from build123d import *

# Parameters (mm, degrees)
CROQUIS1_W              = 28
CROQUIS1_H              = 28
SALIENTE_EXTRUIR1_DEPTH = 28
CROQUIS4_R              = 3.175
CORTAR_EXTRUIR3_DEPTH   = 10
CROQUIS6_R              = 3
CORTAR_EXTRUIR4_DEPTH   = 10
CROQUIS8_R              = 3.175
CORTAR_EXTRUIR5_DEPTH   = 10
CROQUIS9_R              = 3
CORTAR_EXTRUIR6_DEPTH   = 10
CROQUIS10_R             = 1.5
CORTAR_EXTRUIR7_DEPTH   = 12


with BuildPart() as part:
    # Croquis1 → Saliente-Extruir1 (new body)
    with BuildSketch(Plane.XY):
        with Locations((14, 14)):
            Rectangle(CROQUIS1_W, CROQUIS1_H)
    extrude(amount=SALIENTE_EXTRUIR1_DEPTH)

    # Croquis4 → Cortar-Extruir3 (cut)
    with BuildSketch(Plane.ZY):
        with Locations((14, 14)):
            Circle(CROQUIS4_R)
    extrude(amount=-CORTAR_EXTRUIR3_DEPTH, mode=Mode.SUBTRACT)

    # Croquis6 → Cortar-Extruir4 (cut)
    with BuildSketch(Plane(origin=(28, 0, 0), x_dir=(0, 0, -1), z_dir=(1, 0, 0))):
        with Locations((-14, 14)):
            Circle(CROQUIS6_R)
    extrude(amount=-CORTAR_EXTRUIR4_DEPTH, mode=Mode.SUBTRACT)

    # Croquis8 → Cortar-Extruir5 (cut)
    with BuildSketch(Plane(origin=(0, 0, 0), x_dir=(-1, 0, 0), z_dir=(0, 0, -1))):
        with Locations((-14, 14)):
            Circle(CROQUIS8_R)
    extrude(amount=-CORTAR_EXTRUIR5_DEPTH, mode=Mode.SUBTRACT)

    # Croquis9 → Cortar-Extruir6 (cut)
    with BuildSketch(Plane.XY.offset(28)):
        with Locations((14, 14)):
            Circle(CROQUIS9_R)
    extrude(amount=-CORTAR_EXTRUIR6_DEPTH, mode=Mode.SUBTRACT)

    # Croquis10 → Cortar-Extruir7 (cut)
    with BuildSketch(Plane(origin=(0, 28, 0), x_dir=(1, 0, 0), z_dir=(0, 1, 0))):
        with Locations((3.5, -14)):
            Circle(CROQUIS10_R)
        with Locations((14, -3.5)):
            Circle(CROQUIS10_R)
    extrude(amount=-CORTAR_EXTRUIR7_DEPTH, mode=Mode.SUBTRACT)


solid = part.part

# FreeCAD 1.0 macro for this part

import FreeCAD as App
import Part
import Sketcher

doc = App.newDocument("Part")
body = doc.addObject("PartDesign::Body", "Body")

sketch1 = body.newObject("Sketcher::SketchObject", "Sketch")
sketch1.AttachmentSupport = (doc.getObject("XY_Plane"), [""])
sketch1.MapMode = "FlatFace"
sketch1.addGeometry([
    Part.LineSegment(App.Vector(0, 28, 0), App.Vector(0, 0, 0)),
    Part.LineSegment(App.Vector(0, 0, 0), App.Vector(28, 0, 0)),
    Part.LineSegment(App.Vector(28, 0, 0), App.Vector(28, 28, 0)),
    Part.LineSegment(App.Vector(28, 28, 0), App.Vector(0, 28, 0)),
], False)
sketch1.addConstraint([
    Sketcher.Constraint("Coincident", 0, 2, 1, 1),
    Sketcher.Constraint("Coincident", 1, 2, 2, 1),
    Sketcher.Constraint("Coincident", 2, 2, 3, 1),
    Sketcher.Constraint("Coincident", 3, 2, 0, 1),
    Sketcher.Constraint("Vertical", 0),
    Sketcher.Constraint("Horizontal", 1),
    Sketcher.Constraint("Vertical", 2),
    Sketcher.Constraint("Horizontal", 3),
    Sketcher.Constraint("Coincident", 0, 2, -1, 1),
    Sketcher.Constraint("Equal", 3, 0),
    Sketcher.Constraint("DistanceX", 1, 1, 1, 2, 28.0),
])
pad1 = body.newObject("PartDesign::Pad", "Pad")
pad1.Profile = sketch1
pad1.Length = 28

sketch2 = body.newObject("Sketcher::SketchObject", "Sketch001")
sketch2.AttachmentSupport = (doc.getObject("YZ_Plane"), [""])
sketch2.MapMode = "FlatFace"
sketch2.addGeometry(Part.Circle(App.Vector(14, 14, 0), App.Vector(0, 0, 1), 3.2), False)
sketch2.addConstraint([
    Sketcher.Constraint("Diameter", 0, 6.35),
    Sketcher.Constraint("DistanceX", -1, 1, 0, 3, 14.0),
    Sketcher.Constraint("DistanceY", -1, 1, 0, 3, 14.0),
])
pocket1 = body.newObject("PartDesign::Pocket", "Pocket")
pocket1.Profile = sketch2
pocket1.Length = 10
pocket1.Reversed = True

sketch3 = body.newObject("Sketcher::SketchObject", "Sketch002")
sketch3.AttachmentSupport = (doc.getObject("YZ_Plane"), [""])
sketch3.MapMode = "FlatFace"
sketch3.AttachmentOffset = App.Placement(App.Vector(0, 0, 28), App.Rotation())
sketch3.addGeometry(Part.Circle(App.Vector(14, 14, 0), App.Vector(0, 0, 1), 3), False)
sketch3.addConstraint([
    Sketcher.Constraint("Diameter", 0, 6.0),
    Sketcher.Constraint("DistanceX", -1, 1, 0, 3, 14.0),
    Sketcher.Constraint("DistanceY", -1, 1, 0, 3, 14.0),
])
pocket2 = body.newObject("PartDesign::Pocket", "Pocket001")
pocket2.Profile = sketch3
pocket2.Length = 10

sketch4 = body.newObject("Sketcher::SketchObject", "Sketch003")
sketch4.AttachmentSupport = (doc.getObject("XY_Plane"), [""])
sketch4.MapMode = "FlatFace"
sketch4.addGeometry(Part.Circle(App.Vector(14, 14, 0), App.Vector(0, 0, 1), 3.2), False)
sketch4.addConstraint([
    Sketcher.Constraint("Diameter", 0, 6.35),
    Sketcher.Constraint("DistanceX", -1, 1, 0, 3, 14.0),
    Sketcher.Constraint("DistanceY", -1, 1, 0, 3, 14.0),
])
pocket3 = body.newObject("PartDesign::Pocket", "Pocket002")
pocket3.Profile = sketch4
pocket3.Length = 10
pocket3.Reversed = True

sketch5 = body.newObject("Sketcher::SketchObject", "Sketch004")
sketch5.AttachmentSupport = (doc.getObject("XY_Plane"), [""])
sketch5.MapMode = "FlatFace"
sketch5.AttachmentOffset = App.Placement(App.Vector(0, 0, 28), App.Rotation())
sketch5.addGeometry(Part.Circle(App.Vector(14, 14, 0), App.Vector(0, 0, 1), 3), False)
sketch5.addConstraint([
    Sketcher.Constraint("Diameter", 0, 6.0),
    Sketcher.Constraint("DistanceX", -1, 1, 0, 3, 14.0),
    Sketcher.Constraint("DistanceY", -1, 1, 0, 3, 14.0),
])
pocket4 = body.newObject("PartDesign::Pocket", "Pocket003")
pocket4.Profile = sketch5
pocket4.Length = 10

sketch6 = body.newObject("Sketcher::SketchObject", "Sketch005")
sketch6.AttachmentSupport = (doc.getObject("XZ_Plane"), [""])
sketch6.MapMode = "FlatFace"
sketch6.AttachmentOffset = App.Placement(App.Vector(0, 0, -28), App.Rotation())
sketch6.addGeometry([
    Part.Circle(App.Vector(3.5, 14, 0), App.Vector(0, 0, 1), 1.5),
    Part.Circle(App.Vector(14, 3.5, 0), App.Vector(0, 0, 1), 1.5),
], False)
sketch6.addConstraint([
    Sketcher.Constraint("Equal", 0, 1),
    Sketcher.Constraint("Diameter", 0, 3.0),
    Sketcher.Constraint("DistanceY", -1, 1, 0, 3, 14.0),
    Sketcher.Constraint("DistanceX", -1, 1, 1, 3, 14.0),
    Sketcher.Constraint("DistanceX", -1, 1, 0, 3, 3.5),
    Sketcher.Constraint("DistanceY", -1, 1, 1, 3, 3.5),
])
pocket5 = body.newObject("PartDesign::Pocket", "Pocket004")
pocket5.Profile = sketch6
pocket5.Length = 12
pocket5.Reversed = True

doc.recompute()
